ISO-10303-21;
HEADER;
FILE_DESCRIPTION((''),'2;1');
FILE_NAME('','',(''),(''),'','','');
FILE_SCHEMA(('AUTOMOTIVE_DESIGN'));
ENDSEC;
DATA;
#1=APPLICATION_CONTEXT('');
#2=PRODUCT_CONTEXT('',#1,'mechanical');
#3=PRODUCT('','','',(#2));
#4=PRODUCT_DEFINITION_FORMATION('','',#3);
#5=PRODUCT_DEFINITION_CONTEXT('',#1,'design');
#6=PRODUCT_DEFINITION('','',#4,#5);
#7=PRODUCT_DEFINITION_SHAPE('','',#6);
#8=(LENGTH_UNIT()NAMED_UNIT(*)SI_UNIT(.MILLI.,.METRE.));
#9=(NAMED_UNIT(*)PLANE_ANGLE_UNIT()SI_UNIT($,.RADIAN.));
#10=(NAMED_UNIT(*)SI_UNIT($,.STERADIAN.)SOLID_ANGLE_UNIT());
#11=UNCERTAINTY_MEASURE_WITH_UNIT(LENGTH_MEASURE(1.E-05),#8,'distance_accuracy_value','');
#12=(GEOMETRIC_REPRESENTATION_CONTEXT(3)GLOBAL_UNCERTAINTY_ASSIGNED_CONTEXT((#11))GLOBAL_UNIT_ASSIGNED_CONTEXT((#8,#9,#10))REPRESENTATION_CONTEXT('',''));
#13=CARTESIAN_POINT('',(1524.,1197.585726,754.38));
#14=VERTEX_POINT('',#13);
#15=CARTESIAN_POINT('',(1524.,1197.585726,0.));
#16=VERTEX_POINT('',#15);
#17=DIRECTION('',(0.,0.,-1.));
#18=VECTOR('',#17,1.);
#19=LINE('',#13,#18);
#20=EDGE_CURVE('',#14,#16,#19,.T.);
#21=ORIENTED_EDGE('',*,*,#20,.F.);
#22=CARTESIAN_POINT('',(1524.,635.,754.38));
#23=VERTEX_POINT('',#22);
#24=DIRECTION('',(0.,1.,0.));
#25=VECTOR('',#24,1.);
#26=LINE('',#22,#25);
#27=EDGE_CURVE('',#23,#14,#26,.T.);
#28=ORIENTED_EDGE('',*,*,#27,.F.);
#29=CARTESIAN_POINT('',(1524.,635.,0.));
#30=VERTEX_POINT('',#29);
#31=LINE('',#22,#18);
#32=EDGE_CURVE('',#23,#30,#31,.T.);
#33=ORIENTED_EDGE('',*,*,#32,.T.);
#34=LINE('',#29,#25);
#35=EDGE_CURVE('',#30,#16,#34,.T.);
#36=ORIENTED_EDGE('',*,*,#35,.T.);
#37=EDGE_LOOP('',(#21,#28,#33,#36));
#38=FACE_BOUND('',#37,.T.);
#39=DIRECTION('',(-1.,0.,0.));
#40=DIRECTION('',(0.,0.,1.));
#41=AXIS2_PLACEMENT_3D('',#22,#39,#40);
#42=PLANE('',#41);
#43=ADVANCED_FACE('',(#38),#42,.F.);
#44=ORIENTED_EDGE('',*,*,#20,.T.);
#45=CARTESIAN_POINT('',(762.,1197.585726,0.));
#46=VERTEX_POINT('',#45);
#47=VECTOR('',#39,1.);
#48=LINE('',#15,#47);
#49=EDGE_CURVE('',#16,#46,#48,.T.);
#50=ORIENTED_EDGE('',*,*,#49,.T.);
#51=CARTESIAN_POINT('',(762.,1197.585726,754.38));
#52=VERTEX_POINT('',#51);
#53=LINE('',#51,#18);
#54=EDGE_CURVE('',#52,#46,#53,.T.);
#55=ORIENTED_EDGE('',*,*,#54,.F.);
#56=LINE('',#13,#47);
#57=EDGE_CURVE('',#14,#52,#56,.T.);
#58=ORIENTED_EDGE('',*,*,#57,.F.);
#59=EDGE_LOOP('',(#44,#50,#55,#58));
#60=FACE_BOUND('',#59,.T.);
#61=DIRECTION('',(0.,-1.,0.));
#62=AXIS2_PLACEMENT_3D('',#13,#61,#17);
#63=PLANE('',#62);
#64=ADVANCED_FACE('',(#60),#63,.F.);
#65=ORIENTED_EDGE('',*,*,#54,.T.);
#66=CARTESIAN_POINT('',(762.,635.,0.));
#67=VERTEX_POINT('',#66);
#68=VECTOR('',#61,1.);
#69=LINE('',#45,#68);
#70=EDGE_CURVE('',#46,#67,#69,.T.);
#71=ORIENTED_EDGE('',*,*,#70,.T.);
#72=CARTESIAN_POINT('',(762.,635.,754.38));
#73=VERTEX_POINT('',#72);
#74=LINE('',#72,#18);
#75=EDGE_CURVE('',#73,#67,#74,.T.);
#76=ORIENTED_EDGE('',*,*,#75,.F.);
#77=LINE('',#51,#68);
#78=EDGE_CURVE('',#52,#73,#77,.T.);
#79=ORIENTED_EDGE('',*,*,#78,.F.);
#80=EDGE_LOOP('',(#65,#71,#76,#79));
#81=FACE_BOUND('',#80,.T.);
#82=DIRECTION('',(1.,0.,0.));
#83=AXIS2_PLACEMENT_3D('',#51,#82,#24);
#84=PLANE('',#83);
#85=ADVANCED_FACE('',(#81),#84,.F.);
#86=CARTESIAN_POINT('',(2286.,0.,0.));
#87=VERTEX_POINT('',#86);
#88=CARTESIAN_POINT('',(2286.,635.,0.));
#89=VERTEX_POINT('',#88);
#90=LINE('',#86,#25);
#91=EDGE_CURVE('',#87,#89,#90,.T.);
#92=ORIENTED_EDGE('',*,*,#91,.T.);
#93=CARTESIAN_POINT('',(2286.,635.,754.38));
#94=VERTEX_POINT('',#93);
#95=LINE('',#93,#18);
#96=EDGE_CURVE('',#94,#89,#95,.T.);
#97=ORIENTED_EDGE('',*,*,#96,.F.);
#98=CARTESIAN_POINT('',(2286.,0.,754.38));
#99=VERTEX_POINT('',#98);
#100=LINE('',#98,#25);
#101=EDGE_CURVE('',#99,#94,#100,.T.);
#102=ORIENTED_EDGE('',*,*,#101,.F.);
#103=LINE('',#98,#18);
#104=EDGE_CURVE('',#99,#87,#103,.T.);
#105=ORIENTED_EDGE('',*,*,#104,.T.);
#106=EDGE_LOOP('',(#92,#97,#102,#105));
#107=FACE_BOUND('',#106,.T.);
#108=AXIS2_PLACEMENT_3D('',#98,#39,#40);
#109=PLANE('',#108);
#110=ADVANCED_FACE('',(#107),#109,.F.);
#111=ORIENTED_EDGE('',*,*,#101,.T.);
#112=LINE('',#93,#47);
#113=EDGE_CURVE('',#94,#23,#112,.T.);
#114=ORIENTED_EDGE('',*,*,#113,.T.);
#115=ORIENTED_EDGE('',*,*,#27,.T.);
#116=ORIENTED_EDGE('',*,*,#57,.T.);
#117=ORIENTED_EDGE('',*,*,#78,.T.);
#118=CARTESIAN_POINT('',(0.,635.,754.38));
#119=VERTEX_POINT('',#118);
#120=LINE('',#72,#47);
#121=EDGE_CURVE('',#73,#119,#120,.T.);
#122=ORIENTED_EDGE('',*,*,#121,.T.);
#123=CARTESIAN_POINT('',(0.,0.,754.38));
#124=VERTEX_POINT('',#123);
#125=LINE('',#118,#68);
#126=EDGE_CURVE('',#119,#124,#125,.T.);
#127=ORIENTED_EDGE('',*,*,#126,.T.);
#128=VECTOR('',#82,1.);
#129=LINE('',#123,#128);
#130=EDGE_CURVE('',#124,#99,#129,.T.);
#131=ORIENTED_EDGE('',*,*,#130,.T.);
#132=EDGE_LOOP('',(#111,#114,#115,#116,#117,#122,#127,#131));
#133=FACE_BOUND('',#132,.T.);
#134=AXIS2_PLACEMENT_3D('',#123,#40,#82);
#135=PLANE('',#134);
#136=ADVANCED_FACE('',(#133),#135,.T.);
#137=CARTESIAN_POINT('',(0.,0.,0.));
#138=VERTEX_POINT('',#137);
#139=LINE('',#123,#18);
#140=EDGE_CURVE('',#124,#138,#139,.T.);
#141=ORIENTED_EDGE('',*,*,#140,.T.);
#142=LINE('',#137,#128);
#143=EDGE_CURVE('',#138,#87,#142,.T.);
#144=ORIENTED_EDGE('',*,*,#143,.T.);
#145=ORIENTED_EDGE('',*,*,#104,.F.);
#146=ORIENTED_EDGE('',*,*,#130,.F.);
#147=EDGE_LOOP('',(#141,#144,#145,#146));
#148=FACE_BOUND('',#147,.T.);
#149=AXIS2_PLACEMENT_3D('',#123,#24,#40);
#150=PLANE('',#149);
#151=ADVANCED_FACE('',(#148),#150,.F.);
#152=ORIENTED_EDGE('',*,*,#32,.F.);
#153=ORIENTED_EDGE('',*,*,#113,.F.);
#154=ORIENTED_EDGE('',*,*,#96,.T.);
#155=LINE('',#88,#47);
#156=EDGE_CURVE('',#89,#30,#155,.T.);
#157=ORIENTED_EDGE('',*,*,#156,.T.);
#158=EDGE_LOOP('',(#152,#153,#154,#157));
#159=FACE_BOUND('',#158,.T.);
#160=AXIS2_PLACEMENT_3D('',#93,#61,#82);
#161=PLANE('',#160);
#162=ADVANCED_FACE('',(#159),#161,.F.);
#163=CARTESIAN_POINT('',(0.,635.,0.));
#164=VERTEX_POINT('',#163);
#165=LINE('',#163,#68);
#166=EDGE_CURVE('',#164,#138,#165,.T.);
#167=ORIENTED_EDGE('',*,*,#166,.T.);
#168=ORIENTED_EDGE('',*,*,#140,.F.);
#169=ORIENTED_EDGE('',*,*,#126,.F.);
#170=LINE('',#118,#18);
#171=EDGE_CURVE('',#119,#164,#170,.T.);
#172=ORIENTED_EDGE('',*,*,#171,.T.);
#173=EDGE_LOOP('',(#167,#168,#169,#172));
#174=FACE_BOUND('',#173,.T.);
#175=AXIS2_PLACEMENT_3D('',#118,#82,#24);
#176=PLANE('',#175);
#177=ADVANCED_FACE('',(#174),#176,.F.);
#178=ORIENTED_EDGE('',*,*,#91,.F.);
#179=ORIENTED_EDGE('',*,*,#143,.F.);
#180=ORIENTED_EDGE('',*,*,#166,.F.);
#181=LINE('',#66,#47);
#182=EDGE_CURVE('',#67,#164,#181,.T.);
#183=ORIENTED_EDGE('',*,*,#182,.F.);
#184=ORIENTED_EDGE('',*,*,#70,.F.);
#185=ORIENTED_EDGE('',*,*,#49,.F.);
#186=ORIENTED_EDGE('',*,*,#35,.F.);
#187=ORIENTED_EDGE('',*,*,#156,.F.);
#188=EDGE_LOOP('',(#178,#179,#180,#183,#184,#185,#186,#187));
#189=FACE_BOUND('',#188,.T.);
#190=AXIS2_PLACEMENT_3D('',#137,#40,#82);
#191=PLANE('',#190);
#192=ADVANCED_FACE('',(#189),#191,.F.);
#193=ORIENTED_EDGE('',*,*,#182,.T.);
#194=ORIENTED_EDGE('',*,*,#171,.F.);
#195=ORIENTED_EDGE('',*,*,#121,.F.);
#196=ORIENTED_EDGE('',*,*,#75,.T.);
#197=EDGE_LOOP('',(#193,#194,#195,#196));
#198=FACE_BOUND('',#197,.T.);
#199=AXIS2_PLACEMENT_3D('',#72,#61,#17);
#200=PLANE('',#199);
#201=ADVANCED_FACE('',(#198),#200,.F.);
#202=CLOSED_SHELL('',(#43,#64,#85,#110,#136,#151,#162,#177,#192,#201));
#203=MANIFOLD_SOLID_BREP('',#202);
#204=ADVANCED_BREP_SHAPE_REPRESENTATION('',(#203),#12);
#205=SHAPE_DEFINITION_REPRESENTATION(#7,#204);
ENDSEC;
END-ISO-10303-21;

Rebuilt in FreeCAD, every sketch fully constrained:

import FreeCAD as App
import Part
import Sketcher
from FreeCAD import Vector
Q = App.Units.Quantity


def add_polygon(sketch, points):
    """Adds a closed chain of lines whose ends are joined by coincident constraints."""
    first, n = sketch.GeometryCount, len(points)
    for a, b in zip(points, points[1:] + points[:1]):
        sketch.addGeometry(Part.LineSegment(App.Vector(*a, 0), App.Vector(*b, 0)), False)
    for i in range(n):
        sketch.addConstraint(Sketcher.Constraint("Coincident", first + i, 2, first + (i + 1) % n, 1))

doc = App.newDocument("Part")
body = doc.addObject("PartDesign::Body", "Body")

sketch1 = body.newObject("Sketcher::SketchObject", "Sketch")
sketch1.AttachmentSupport = (doc.getObject("XY_Plane"), [""])
sketch1.MapMode = "FlatFace"
add_polygon(sketch1, [(0, 0), (2286, 0), (2286, 635), (1524, 635), (1524, 1197.585726), (762, 1197.585726), (762, 635), (0, 635)])
sketch1.addConstraint([
    Sketcher.Constraint("Horizontal", 0),
    Sketcher.Constraint("Vertical", 1),
    Sketcher.Constraint("Horizontal", 2),
    Sketcher.Constraint("Vertical", 3),
    Sketcher.Constraint("Horizontal", 4),
    Sketcher.Constraint("Vertical", 5),
    Sketcher.Constraint("Horizontal", 6),
    Sketcher.Constraint("Vertical", 7),
    Sketcher.Constraint("Coincident", 7, 2, -1, 1),
    Sketcher.Constraint("Horizontal", 2, 2, 5, 2),
    Sketcher.Constraint("Equal", 2, 4),
    Sketcher.Constraint("Equal", 4, 6),
    Sketcher.Constraint("DistanceX", 0, 1, 0, 2, Q("90 in")),
    Sketcher.Constraint("DistanceY", 1, 1, 1, 2, Q("25 in")),
    Sketcher.Constraint("DistanceY", 3, 1, 3, 2, Q("562.585726 mm")),
])
pad1 = body.newObject("PartDesign::Pad", "Pad")
pad1.Profile = sketch1
pad1.Length = Q("29.7 in")

doc.recompute()
